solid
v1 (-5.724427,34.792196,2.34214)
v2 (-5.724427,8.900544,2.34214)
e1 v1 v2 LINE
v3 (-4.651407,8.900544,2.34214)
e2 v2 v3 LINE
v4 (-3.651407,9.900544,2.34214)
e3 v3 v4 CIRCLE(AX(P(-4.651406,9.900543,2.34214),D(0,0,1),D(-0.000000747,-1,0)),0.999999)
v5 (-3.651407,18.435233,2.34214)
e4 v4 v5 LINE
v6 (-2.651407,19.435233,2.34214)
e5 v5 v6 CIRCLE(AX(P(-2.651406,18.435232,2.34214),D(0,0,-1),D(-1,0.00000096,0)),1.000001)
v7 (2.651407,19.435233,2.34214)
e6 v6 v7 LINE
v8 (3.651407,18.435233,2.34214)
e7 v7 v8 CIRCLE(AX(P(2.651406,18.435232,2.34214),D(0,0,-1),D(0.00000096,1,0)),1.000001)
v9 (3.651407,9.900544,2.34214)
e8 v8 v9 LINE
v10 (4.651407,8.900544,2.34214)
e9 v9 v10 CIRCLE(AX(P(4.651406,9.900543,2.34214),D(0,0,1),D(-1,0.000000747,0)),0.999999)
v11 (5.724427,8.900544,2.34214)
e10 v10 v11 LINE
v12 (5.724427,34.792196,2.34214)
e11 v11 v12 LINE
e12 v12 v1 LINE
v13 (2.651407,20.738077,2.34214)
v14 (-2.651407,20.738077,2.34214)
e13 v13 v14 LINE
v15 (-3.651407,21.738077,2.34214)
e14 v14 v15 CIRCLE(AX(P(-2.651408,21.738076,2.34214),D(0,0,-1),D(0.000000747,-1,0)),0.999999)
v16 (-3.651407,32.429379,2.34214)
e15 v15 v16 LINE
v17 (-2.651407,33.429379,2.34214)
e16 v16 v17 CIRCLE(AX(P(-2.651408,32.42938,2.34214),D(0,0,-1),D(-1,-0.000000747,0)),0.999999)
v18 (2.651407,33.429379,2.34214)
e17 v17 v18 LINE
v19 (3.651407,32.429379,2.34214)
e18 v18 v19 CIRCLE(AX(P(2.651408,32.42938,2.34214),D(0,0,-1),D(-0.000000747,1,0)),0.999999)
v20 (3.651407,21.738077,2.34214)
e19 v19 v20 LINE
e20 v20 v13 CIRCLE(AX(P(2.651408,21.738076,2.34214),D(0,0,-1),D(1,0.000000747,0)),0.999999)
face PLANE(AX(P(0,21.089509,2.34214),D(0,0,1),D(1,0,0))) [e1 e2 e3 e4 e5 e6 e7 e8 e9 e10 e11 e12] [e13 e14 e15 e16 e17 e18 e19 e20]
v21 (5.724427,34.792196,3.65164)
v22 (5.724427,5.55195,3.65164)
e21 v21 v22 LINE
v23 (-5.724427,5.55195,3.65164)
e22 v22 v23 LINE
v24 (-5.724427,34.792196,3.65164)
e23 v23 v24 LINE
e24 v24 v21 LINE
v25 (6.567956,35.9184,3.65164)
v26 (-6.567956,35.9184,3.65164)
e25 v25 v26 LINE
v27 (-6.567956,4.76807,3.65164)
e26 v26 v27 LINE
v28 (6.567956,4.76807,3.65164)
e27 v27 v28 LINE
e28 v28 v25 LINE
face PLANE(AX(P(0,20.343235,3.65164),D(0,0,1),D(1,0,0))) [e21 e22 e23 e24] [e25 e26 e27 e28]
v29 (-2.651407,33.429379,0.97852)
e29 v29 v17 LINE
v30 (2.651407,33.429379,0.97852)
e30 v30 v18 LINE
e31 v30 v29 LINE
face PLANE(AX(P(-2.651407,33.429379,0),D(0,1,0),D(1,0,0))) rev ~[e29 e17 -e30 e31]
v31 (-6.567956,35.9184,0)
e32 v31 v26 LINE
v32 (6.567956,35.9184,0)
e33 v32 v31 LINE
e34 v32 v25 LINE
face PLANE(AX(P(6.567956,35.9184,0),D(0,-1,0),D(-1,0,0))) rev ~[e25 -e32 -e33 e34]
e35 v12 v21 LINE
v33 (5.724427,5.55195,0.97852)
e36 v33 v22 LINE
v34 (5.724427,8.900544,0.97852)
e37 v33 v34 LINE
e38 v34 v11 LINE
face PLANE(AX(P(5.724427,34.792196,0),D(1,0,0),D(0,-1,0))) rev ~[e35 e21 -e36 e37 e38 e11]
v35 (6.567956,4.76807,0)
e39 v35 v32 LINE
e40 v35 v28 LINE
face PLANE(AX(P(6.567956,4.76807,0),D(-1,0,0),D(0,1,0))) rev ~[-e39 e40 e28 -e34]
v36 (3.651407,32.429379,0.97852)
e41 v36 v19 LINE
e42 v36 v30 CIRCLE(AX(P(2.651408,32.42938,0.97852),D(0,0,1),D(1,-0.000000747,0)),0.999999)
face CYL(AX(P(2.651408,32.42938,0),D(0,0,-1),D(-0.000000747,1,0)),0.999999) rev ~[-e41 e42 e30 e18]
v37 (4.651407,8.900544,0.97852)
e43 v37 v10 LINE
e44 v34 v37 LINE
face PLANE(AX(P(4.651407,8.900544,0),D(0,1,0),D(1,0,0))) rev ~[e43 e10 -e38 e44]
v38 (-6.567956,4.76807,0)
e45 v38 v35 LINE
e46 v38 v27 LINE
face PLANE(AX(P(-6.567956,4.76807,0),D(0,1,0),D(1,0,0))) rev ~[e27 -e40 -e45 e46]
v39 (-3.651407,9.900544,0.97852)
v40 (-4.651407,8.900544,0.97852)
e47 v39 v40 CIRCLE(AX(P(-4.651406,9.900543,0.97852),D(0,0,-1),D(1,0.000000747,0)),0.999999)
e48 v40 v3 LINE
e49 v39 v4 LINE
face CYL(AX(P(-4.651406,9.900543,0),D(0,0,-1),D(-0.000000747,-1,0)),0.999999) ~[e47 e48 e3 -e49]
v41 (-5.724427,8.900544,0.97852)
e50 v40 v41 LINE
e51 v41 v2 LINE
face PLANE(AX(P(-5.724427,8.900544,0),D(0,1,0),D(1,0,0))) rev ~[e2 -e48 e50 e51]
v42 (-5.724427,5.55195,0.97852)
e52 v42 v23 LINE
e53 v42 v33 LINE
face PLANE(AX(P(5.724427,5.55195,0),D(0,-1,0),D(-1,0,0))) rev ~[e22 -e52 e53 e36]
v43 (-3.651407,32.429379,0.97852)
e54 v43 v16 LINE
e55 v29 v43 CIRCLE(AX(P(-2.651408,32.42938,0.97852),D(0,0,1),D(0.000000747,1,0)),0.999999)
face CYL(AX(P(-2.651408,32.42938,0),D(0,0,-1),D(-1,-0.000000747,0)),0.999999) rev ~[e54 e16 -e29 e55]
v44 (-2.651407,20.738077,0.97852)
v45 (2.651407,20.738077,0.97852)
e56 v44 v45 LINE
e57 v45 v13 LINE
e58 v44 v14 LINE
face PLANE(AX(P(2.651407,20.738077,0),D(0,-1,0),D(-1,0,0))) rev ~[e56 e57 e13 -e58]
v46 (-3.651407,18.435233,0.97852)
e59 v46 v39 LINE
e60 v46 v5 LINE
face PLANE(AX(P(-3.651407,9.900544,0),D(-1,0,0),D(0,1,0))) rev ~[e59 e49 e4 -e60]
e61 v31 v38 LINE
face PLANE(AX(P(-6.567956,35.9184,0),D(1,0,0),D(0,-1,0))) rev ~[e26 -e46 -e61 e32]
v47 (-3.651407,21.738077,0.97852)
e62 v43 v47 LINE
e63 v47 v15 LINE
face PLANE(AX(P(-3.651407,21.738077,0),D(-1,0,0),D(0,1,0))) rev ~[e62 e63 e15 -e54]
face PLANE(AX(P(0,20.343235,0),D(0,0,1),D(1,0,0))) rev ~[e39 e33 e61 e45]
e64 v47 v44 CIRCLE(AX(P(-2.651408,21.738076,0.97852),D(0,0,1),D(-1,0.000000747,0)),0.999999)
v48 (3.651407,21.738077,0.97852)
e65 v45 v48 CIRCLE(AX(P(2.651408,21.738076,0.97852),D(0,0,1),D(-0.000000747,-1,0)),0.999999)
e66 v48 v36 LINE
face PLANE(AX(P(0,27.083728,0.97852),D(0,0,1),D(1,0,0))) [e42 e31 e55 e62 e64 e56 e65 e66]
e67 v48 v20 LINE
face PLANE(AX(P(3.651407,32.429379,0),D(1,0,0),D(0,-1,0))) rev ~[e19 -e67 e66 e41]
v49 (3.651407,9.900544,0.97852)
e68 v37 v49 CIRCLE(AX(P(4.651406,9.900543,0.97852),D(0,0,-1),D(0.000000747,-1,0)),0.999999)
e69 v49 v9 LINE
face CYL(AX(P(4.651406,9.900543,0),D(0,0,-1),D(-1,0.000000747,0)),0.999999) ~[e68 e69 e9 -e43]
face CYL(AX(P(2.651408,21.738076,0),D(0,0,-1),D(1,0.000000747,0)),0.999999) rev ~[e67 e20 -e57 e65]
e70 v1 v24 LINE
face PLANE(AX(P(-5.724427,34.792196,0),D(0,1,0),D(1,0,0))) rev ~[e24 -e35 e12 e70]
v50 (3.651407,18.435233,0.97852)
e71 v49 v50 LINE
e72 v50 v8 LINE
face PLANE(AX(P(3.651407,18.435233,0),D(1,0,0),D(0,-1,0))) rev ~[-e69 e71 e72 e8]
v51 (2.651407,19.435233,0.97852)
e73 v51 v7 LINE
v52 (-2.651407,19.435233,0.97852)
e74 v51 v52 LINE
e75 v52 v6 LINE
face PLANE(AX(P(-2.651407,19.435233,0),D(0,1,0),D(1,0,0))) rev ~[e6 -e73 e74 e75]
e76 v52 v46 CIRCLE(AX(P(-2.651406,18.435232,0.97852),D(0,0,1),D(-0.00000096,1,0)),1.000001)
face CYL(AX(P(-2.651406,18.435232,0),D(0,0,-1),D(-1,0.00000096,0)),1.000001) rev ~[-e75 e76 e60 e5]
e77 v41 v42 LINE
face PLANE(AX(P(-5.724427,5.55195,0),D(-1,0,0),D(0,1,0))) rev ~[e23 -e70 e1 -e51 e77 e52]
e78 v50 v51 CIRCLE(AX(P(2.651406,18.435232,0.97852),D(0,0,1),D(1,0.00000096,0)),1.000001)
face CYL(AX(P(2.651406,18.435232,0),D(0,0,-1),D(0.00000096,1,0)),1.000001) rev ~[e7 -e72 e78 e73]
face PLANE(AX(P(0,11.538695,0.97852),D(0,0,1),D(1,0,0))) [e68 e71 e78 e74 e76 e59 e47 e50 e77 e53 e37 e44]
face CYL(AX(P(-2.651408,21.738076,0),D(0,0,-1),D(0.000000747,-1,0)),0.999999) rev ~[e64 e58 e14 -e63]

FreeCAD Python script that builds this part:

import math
import FreeCAD as App
import Part
import Sketcher

V = App.Vector

doc = App.newDocument("Part")
body = doc.addObject("PartDesign::Body", "Body")
body.AllowCompound = True

# Sketch on XY plane
sketch1 = doc.addObject("Sketcher::SketchObject", "Sketch")
body.addObject(sketch1)
sketch1.AttachmentSupport = (doc.XY_Plane, [""])
sketch1.MapMode = "FlatFace"
sketch1.addGeometry([
    Part.LineSegment(V(5.7, 5.6, 0), V(5.7, 8.9, 0)),  # 0
    Part.LineSegment(V(5.7, 8.9, 0), V(4.7, 8.9, 0)),  # 1
    Part.ArcOfCircle(Part.Circle(V(4.7, 9.9, 0), V(0, 0, 1), 1), math.radians(180), math.radians(270)),  # 2
    Part.LineSegment(V(3.7, 9.9, 0), V(3.7, 18.4, 0)),  # 3
    Part.ArcOfCircle(Part.Circle(V(2.7, 18.4, 0), V(0, 0, 1), 1), math.radians(0), math.radians(90)),  # 4
    Part.LineSegment(V(2.7, 19.4, 0), V(-2.7, 19.4, 0)),  # 5
    Part.ArcOfCircle(Part.Circle(V(-2.7, 18.4, 0), V(0, 0, 1), 1), math.radians(90), math.radians(180)),  # 6
    Part.LineSegment(V(-3.7, 18.4, 0), V(-3.7, 9.9, 0)),  # 7
    Part.ArcOfCircle(Part.Circle(V(-4.7, 9.9, 0), V(0, 0, 1), 1), math.radians(-90), math.radians(0)),  # 8
    Part.LineSegment(V(-4.7, 8.9, 0), V(-5.7, 8.9, 0)),  # 9
    Part.LineSegment(V(-5.7, 8.9, 0), V(-5.7, 5.6, 0)),  # 10
    Part.LineSegment(V(-5.7, 5.6, 0), V(5.7, 5.6, 0)),  # 11
    Part.ArcOfCircle(Part.Circle(V(2.7, 32.4, 0), V(0, 0, 1), 1), math.radians(0), math.radians(90)),  # 12
    Part.LineSegment(V(2.7, 33.4, 0), V(-2.7, 33.4, 0)),  # 13
    Part.ArcOfCircle(Part.Circle(V(-2.7, 32.4, 0), V(0, 0, 1), 1), math.radians(90), math.radians(180)),  # 14
    Part.LineSegment(V(-3.7, 32.4, 0), V(-3.7, 21.7, 0)),  # 15
    Part.ArcOfCircle(Part.Circle(V(-2.7, 21.7, 0), V(0, 0, 1), 1), math.radians(180), math.radians(270)),  # 16
    Part.LineSegment(V(-2.7, 20.7, 0), V(2.7, 20.7, 0)),  # 17
    Part.ArcOfCircle(Part.Circle(V(2.7, 21.7, 0), V(0, 0, 1), 1), math.radians(-90), math.radians(0)),  # 18
    Part.LineSegment(V(3.7, 21.7, 0), V(3.7, 32.4, 0)),  # 19
], False)
sketch1.addConstraint([
    Sketcher.Constraint("Coincident", 0, 2, 1, 1),
    Sketcher.Constraint("Tangent", 1, 2, 2, 2),
    Sketcher.Constraint("Tangent", 2, 1, 3, 1),
    Sketcher.Constraint("Tangent", 3, 2, 4, 1),
    Sketcher.Constraint("Tangent", 4, 2, 5, 1),
    Sketcher.Constraint("Tangent", 5, 2, 6, 1),
    Sketcher.Constraint("Tangent", 6, 2, 7, 1),
    Sketcher.Constraint("Tangent", 7, 2, 8, 2),
    Sketcher.Constraint("Tangent", 8, 1, 9, 1),
    Sketcher.Constraint("Coincident", 9, 2, 10, 1),
    Sketcher.Constraint("Coincident", 10, 2, 11, 1),
    Sketcher.Constraint("Coincident", 11, 2, 0, 1),
    Sketcher.Constraint("Tangent", 12, 2, 13, 1),
    Sketcher.Constraint("Tangent", 13, 2, 14, 1),
    Sketcher.Constraint("Tangent", 14, 2, 15, 1),
    Sketcher.Constraint("Tangent", 15, 2, 16, 1),
    Sketcher.Constraint("Tangent", 16, 2, 17, 1),
    Sketcher.Constraint("Tangent", 17, 2, 18, 1),
    Sketcher.Constraint("Tangent", 18, 2, 19, 1),
    Sketcher.Constraint("Tangent", 19, 2, 12, 1),
    Sketcher.Constraint("Vertical", 0),
    Sketcher.Constraint("Horizontal", 1),
    Sketcher.Constraint("Vertical", 3),
    Sketcher.Constraint("Horizontal", 5),
    Sketcher.Constraint("Vertical", 7),
    Sketcher.Constraint("Horizontal", 9),
    Sketcher.Constraint("Vertical", 10),
    Sketcher.Constraint("Horizontal", 11),
    Sketcher.Constraint("Horizontal", 13),
    Sketcher.Constraint("Vertical", 15),
    Sketcher.Constraint("Horizontal", 17),
    Sketcher.Constraint("Vertical", 19),
    Sketcher.Constraint("Equal", 2, 4),
    Sketcher.Constraint("Equal", 4, 6),
    Sketcher.Constraint("Equal", 6, 8),
    Sketcher.Constraint("Equal", 8, 12),
    Sketcher.Constraint("Equal", 12, 14),
    Sketcher.Constraint("Equal", 14, 16),
    Sketcher.Constraint("Equal", 16, 18),
    Sketcher.Constraint("Symmetric", 2, 3, 8, 3, -2),
    Sketcher.Constraint("Vertical", 4, 3, 12, 3),
    Sketcher.Constraint("Vertical", 6, 3, 14, 3),
    Sketcher.Constraint("Equal", 1, 9),
    Sketcher.Constraint("Radius", 2, 0.999999),
    Sketcher.Constraint("DistanceY", 15, 2, 15, 1, 10.691302),
    Sketcher.Constraint("DistanceX", 1, 2, 1, 1, 1.07302),
    Sketcher.Constraint("DistanceY", 3, 1, 3, 2, 8.534689),
    Sketcher.Constraint("DistanceX", 5, 2, 5, 1, 5.302814),
    Sketcher.Constraint("DistanceY", 0, 1, 0, 2, 3.348594),
    Sketcher.Constraint("DistanceY", -1, 1, 12, 3, 32.42938),
    Sketcher.Constraint("DistanceY", -1, 1, 10, 2, 5.55195),
])
pad1 = doc.addObject("PartDesign::Pad", "Pad")
body.addObject(pad1)
pad1.Profile = sketch1
pad1.Length = 0.97852

# Sketch on XY plane
sketch2 = doc.addObject("Sketcher::SketchObject", "Sketch001")
body.addObject(sketch2)
sketch2.AttachmentSupport = (doc.XY_Plane, [""])
sketch2.MapMode = "FlatFace"
sketch2.addGeometry([
    Part.LineSegment(V(4.7, 8.9, 0), V(5.7, 8.9, 0)),  # 0
    Part.LineSegment(V(5.7, 8.9, 0), V(5.7, 34.8, 0)),  # 1
    Part.LineSegment(V(5.7, 34.8, 0), V(-5.7, 34.8, 0)),  # 2
    Part.LineSegment(V(-5.7, 34.8, 0), V(-5.7, 8.9, 0)),  # 3
    Part.LineSegment(V(-5.7, 8.9, 0), V(-4.7, 8.9, 0)),  # 4
    Part.ArcOfCircle(Part.Circle(V(-4.7, 9.9, 0), V(0, 0, 1), 1), math.radians(-90), math.radians(0)),  # 5
    Part.LineSegment(V(-3.7, 9.9, 0), V(-3.7, 18.4, 0)),  # 6
    Part.ArcOfCircle(Part.Circle(V(-2.7, 18.4, 0), V(0, 0, 1), 1), math.radians(90), math.radians(180)),  # 7
    Part.LineSegment(V(-2.7, 19.4, 0), V(2.7, 19.4, 0)),  # 8
    Part.ArcOfCircle(Part.Circle(V(2.7, 18.4, 0), V(0, 0, 1), 1), math.radians(0), math.radians(90)),  # 9
    Part.LineSegment(V(3.7, 18.4, 0), V(3.7, 9.9, 0)),  # 10
    Part.ArcOfCircle(Part.Circle(V(4.7, 9.9, 0), V(0, 0, 1), 1), math.radians(180), math.radians(270)),  # 11
    Part.LineSegment(V(-2.7, 33.4, 0), V(2.7, 33.4, 0)),  # 12
    Part.ArcOfCircle(Part.Circle(V(2.7, 32.4, 0), V(0, 0, 1), 1), math.radians(0), math.radians(90)),  # 13
    Part.LineSegment(V(3.7, 32.4, 0), V(3.7, 21.7, 0)),  # 14
    Part.ArcOfCircle(Part.Circle(V(2.7, 21.7, 0), V(0, 0, 1), 1), math.radians(-90), math.radians(0)),  # 15
    Part.LineSegment(V(2.7, 20.7, 0), V(-2.7, 20.7, 0)),  # 16
    Part.ArcOfCircle(Part.Circle(V(-2.7, 21.7, 0), V(0, 0, 1), 1), math.radians(180), math.radians(270)),  # 17
    Part.LineSegment(V(-3.7, 21.7, 0), V(-3.7, 32.4, 0)),  # 18
    Part.ArcOfCircle(Part.Circle(V(-2.7, 32.4, 0), V(0, 0, 1), 1), math.radians(90), math.radians(180)),  # 19
], False)
sketch2.addConstraint([
    Sketcher.Constraint("Coincident", 0, 2, 1, 1),
    Sketcher.Constraint("Coincident", 1, 2, 2, 1),
    Sketcher.Constraint("Coincident", 2, 2, 3, 1),
    Sketcher.Constraint("Coincident", 3, 2, 4, 1),
    Sketcher.Constraint("Tangent", 4, 2, 5, 1),
    Sketcher.Constraint("Tangent", 5, 2, 6, 1),
    Sketcher.Constraint("Tangent", 6, 2, 7, 2),
    Sketcher.Constraint("Tangent", 7, 1, 8, 1),
    Sketcher.Constraint("Tangent", 8, 2, 9, 2),
    Sketcher.Constraint("Tangent", 9, 1, 10, 1),
    Sketcher.Constraint("Tangent", 10, 2, 11, 1),
    Sketcher.Constraint("Tangent", 11, 2, 0, 1),
    Sketcher.Constraint("Tangent", 12, 2, 13, 2),
    Sketcher.Constraint("Tangent", 13, 1, 14, 1),
    Sketcher.Constraint("Tangent", 14, 2, 15, 2),
    Sketcher.Constraint("Tangent", 15, 1, 16, 1),
    Sketcher.Constraint("Tangent", 16, 2, 17, 2),
    Sketcher.Constraint("Tangent", 17, 1, 18, 1),
    Sketcher.Constraint("Tangent", 18, 2, 19, 2),
    Sketcher.Constraint("Tangent", 19, 1, 12, 1),
    Sketcher.Constraint("Horizontal", 0),
    Sketcher.Constraint("Vertical", 1),
    Sketcher.Constraint("Horizontal", 2),
    Sketcher.Constraint("Vertical", 3),
    Sketcher.Constraint("Horizontal", 4),
    Sketcher.Constraint("Vertical", 6),
    Sketcher.Constraint("Horizontal", 8),
    Sketcher.Constraint("Vertical", 10),
    Sketcher.Constraint("Horizontal", 12),
    Sketcher.Constraint("Vertical", 14),
    Sketcher.Constraint("Horizontal", 16),
    Sketcher.Constraint("Vertical", 18),
    Sketcher.Constraint("Equal", 5, 7),
    Sketcher.Constraint("Equal", 7, 9),
    Sketcher.Constraint("Equal", 9, 11),
    Sketcher.Constraint("Equal", 11, 13),
    Sketcher.Constraint("Equal", 13, 15),
    Sketcher.Constraint("Equal", 15, 17),
    Sketcher.Constraint("Equal", 17, 19),
    Sketcher.Constraint("Symmetric", 5, 3, 11, 3, -2),
    Sketcher.Constraint("Vertical", 9, 3, 13, 3),
    Sketcher.Constraint("Vertical", 7, 3, 17, 3),
    Sketcher.Constraint("Equal", 0, 4),
    Sketcher.Constraint("Radius", 5, 0.999999),
    Sketcher.Constraint("DistanceY", 14, 2, 14, 1, 10.691302),
    Sketcher.Constraint("DistanceX", 0, 1, 0, 2, 1.07302),
    Sketcher.Constraint("DistanceY", 1, 1, 1, 2, 25.891652),
    Sketcher.Constraint("DistanceY", 6, 1, 6, 2, 8.534689),
    Sketcher.Constraint("DistanceX", 2, 2, 2, 1, 11.448854),
    Sketcher.Constraint("DistanceY", -1, 1, 13, 3, 32.42938),
    Sketcher.Constraint("DistanceY", 15, 3, 1, 2, 13.05412),
])
pad2 = doc.addObject("PartDesign::Pad", "Pad001")
body.addObject(pad2)
pad2.Profile = sketch2
pad2.Length = 2.34214

# Sketch on XY plane
sketch3 = doc.addObject("Sketcher::SketchObject", "Sketch002")
body.addObject(sketch3)
sketch3.AttachmentSupport = (doc.XY_Plane, [""])
sketch3.MapMode = "FlatFace"
sketch3.addGeometry([
    Part.LineSegment(V(7, 5, 0), V(7, 36, 0)),  # 0
    Part.LineSegment(V(7, 36, 0), V(-7, 36, 0)),  # 1
    Part.LineSegment(V(-7, 36, 0), V(-7, 5, 0)),  # 2
    Part.LineSegment(V(-7, 5, 0), V(7, 5, 0)),  # 3
    Part.LineSegment(V(6, 35, 0), V(6, 6, 0)),  # 4
    Part.LineSegment(V(6, 6, 0), V(-6, 6, 0)),  # 5
    Part.LineSegment(V(-6, 6, 0), V(-6, 35, 0)),  # 6
    Part.LineSegment(V(-6, 35, 0), V(6, 35, 0)),  # 7
], False)
sketch3.addConstraint([
    Sketcher.Constraint("Coincident", 0, 2, 1, 1),
    Sketcher.Constraint("Coincident", 1, 2, 2, 1),
    Sketcher.Constraint("Coincident", 2, 2, 3, 1),
    Sketcher.Constraint("Coincident", 3, 2, 0, 1),
    Sketcher.Constraint("Coincident", 4, 2, 5, 1),
    Sketcher.Constraint("Coincident", 5, 2, 6, 1),
    Sketcher.Constraint("Coincident", 6, 2, 7, 1),
    Sketcher.Constraint("Coincident", 7, 2, 4, 1),
    Sketcher.Constraint("Vertical", 0),
    Sketcher.Constraint("Horizontal", 1),
    Sketcher.Constraint("Vertical", 2),
    Sketcher.Constraint("Horizontal", 3),
    Sketcher.Constraint("Vertical", 4),
    Sketcher.Constraint("Horizontal", 5),
    Sketcher.Constraint("Vertical", 6),
    Sketcher.Constraint("Horizontal", 7),
    Sketcher.Constraint("DistanceX", 1, 2, 1, 1, 13.135912),
    Sketcher.Constraint("DistanceY", 0, 1, 0, 2, 31.15033),
    Sketcher.Constraint("DistanceY", -1, 1, 0, 2, 35.9184),
    Sketcher.Constraint("DistanceX", 5, 2, 5, 1, 11.448854),
    Sketcher.Constraint("DistanceY", 4, 2, 4, 1, 29.240246),
    Sketcher.Constraint("DistanceY", -1, 1, 4, 2, 5.55195),
    Sketcher.Constraint("DistanceX", 4, 2, 3, 2, 0.843529),
    Sketcher.Constraint("DistanceX", -1, 1, 0, 2, 6.567956),
])
pad3 = doc.addObject("PartDesign::Pad", "Pad002")
body.addObject(pad3)
pad3.Profile = sketch3
pad3.Length = 3.65164

doc.recompute()
